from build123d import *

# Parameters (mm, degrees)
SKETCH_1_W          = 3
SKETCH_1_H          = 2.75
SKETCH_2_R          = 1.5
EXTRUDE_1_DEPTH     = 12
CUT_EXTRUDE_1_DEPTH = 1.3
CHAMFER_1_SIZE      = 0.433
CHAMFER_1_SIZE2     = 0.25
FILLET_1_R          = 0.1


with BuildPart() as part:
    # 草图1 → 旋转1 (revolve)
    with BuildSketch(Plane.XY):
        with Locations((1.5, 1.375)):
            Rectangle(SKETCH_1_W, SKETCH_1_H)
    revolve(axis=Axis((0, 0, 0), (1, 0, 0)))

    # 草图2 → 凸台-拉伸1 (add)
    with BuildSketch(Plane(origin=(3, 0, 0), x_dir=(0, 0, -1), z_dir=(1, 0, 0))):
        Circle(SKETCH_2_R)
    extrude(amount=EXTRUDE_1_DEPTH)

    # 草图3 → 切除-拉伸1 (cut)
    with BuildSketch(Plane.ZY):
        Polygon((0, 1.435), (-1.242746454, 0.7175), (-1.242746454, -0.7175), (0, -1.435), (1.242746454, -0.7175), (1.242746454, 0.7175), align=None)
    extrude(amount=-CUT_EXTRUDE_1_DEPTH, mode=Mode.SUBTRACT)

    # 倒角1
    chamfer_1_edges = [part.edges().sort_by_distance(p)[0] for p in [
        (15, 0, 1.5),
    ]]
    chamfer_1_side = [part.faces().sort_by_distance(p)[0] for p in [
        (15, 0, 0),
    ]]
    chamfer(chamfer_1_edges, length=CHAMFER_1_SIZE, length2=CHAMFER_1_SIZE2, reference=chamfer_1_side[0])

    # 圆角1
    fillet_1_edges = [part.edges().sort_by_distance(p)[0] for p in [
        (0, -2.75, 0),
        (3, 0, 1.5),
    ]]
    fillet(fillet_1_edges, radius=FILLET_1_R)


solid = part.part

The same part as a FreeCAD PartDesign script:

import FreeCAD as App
import Part
import Sketcher
Q = App.Units.Quantity


def edges_at(feature, points):
    """Names of the edges that pass closest to the given points."""
    edges = feature.Shape.Edges
    near = lambda p: min(range(len(edges)), key=lambda i: edges[i].distToShape(Part.Vertex(*p))[0])
    return sorted({f"Edge{near(p) + 1}" for p in points})


def add_polygon(sketch, points):
    """Adds a closed chain of lines whose ends are joined by coincident constraints."""
    first, n = sketch.GeometryCount, len(points)
    for a, b in zip(points, points[1:] + points[:1]):
        sketch.addGeometry(Part.LineSegment(App.Vector(*a, 0), App.Vector(*b, 0)), False)
    for i in range(n):
        sketch.addConstraint(Sketcher.Constraint("Coincident", first + i, 2, first + (i + 1) % n, 1))

doc = App.newDocument("Part")
body = doc.addObject("PartDesign::Body", "Body")

# Sketch on XY plane
sketch1 = body.newObject("Sketcher::SketchObject", "Sketch")
sketch1.AttachmentSupport = (doc.getObject("XY_Plane"), [""])
sketch1.MapMode = "FlatFace"
add_polygon(sketch1, [(0, 2.75), (0, 0), (3, 0), (3, 2.75)])  # lines 0-3
sketch1.addConstraint([
    Sketcher.Constraint("Vertical", 0),
    Sketcher.Constraint("Horizontal", 1),
    Sketcher.Constraint("Vertical", 2),
    Sketcher.Constraint("Horizontal", 3),
    Sketcher.Constraint("Coincident", 0, 2, -1, 1),
    Sketcher.Constraint("DistanceX", 1, 1, 1, 2, 3.0),
    Sketcher.Constraint("DistanceY", 0, 2, 0, 1, 2.75),
])
revolution = body.newObject("PartDesign::Revolution", "Revolution")
revolution.Profile = sketch1
revolution.ReferenceAxis = (sketch1, ["H_Axis"])
revolution.Angle = 360

# Sketch on YZ plane
sketch2 = body.newObject("Sketcher::SketchObject", "Sketch001")
sketch2.AttachmentSupport = (doc.getObject("YZ_Plane"), [""])
sketch2.MapMode = "FlatFace"
sketch2.AttachmentOffset = App.Placement(App.Vector(0, 0, 3), App.Rotation())
sketch2.addGeometry(Part.Circle(App.Vector(0, 0, 0), App.Vector(0, 0, 1), 1.5), False)
sketch2.addConstraint([
    Sketcher.Constraint("Coincident", 0, 3, -1, 1),
    Sketcher.Constraint("Diameter", 0, 3.0),
])
pad1 = body.newObject("PartDesign::Pad", "Pad")
pad1.Profile = sketch2
pad1.Length = 12

# Sketch on YZ plane
sketch3 = body.newObject("Sketcher::SketchObject", "Sketch002")
sketch3.AttachmentSupport = (doc.getObject("YZ_Plane"), [""])
sketch3.MapMode = "FlatFace"
add_polygon(sketch3, [(1.435, 0), (0.7175, -1.242746), (-0.7175, -1.242746), (-1.435, 0), (-0.7175, 1.242746), (0.7175, 1.242746)])  # lines 0-5
sketch3.addConstraint([
    Sketcher.Constraint("Horizontal", 1),
    Sketcher.Constraint("Horizontal", 4),
    Sketcher.Constraint("Symmetric", 0, 2, 3, 2, -1, 1),
    Sketcher.Constraint("Symmetric", 2, 2, 5, 2, -1, 1),
    Sketcher.Constraint("PointOnObject", 2, 2, -1),
    Sketcher.Constraint("Parallel", 2, 5),
    Sketcher.Constraint("Vertical", 1, 2, 3, 2),
    Sketcher.Constraint("Angle", 0, Q("-120 deg")),
    Sketcher.Constraint("DistanceX", 1, 2, 1, 1, 1.435),
    Sketcher.Constraint("DistanceX", 2, 2, 5, 2, 2.87),
])
pocket1 = body.newObject("PartDesign::Pocket", "Pocket")
pocket1.Profile = sketch3
pocket1.Length = 1.3
pocket1.Reversed = True
doc.recompute()

chamfer = body.newObject("PartDesign::Chamfer", "Chamfer")
chamfer.Base = (pocket1, edges_at(pocket1, [(15, 0, 1.5)]))
chamfer.ChamferType = "Two distances"
chamfer.Size = 0.433
chamfer.Size2 = 0.25
chamfer.FlipDirection = True
doc.recompute()

fillet = body.newObject("PartDesign::Fillet", "Fillet")
fillet.Base = (chamfer, edges_at(chamfer, [(0, -2.75, 0), (3, 0, 1.5)]))
fillet.Radius = 0.1

doc.recompute()
